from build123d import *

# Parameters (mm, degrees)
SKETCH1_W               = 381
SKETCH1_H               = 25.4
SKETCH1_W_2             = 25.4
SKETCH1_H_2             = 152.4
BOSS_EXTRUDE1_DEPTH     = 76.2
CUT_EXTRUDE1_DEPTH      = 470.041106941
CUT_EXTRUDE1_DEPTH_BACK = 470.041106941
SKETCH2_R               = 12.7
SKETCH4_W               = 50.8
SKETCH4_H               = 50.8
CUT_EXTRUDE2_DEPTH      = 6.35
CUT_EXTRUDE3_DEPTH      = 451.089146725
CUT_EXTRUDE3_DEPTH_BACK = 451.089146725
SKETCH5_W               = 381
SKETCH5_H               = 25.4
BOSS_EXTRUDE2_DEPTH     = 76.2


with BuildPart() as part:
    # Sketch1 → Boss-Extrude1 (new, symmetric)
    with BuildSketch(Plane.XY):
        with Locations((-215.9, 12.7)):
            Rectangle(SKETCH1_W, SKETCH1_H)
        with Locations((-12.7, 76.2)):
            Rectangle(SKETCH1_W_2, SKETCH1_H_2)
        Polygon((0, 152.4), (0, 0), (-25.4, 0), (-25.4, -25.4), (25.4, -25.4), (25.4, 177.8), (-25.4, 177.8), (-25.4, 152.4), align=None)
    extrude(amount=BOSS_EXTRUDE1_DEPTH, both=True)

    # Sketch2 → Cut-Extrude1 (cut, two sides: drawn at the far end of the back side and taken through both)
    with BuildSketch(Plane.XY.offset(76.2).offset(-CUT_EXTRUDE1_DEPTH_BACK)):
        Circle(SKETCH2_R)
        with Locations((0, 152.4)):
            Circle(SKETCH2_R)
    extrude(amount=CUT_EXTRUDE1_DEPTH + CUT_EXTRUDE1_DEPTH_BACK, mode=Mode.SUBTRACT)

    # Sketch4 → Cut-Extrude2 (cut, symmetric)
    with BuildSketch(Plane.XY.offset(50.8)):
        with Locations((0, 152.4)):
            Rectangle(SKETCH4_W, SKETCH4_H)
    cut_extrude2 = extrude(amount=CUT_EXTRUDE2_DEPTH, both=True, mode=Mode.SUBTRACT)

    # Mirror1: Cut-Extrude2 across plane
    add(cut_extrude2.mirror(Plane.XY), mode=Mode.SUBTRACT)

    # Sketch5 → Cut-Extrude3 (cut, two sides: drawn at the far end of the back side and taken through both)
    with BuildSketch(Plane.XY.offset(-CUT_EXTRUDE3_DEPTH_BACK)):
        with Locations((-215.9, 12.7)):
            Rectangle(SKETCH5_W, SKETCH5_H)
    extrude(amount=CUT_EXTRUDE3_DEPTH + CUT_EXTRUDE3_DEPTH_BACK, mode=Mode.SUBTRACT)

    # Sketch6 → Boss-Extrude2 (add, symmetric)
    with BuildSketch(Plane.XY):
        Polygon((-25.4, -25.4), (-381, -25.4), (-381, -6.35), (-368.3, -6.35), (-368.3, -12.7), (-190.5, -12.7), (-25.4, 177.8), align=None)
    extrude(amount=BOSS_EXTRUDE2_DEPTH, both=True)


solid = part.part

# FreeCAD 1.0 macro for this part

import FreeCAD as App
import Part
import Sketcher
from FreeCAD import Vector
Q = App.Units.Quantity


def add_polygon(sketch, points):
    """Adds a closed chain of lines whose ends are joined by coincident constraints."""
    first, n = sketch.GeometryCount, len(points)
    for a, b in zip(points, points[1:] + points[:1]):
        sketch.addGeometry(Part.LineSegment(App.Vector(*a, 0), App.Vector(*b, 0)), False)
    for i in range(n):
        sketch.addConstraint(Sketcher.Constraint("Coincident", first + i, 2, first + (i + 1) % n, 1))

doc = App.newDocument("Part")
body = doc.addObject("PartDesign::Body", "Body")

# Sketch on XY plane
sketch1 = body.newObject("Sketcher::SketchObject", "Sketch")
sketch1.AttachmentSupport = (doc.getObject("XY_Plane"), [""])
sketch1.MapMode = "FlatFace"
add_polygon(sketch1, [(-406, 25), (-406, 0), (-25, 0), (-25, -25), (25, -25), (25, 178), (-25, 178), (-25, 25)])  # lines 0-7
sketch1.addConstraint([
    Sketcher.Constraint("Vertical", 0),
    Sketcher.Constraint("Horizontal", 1),
    Sketcher.Constraint("Vertical", 2),
    Sketcher.Constraint("Horizontal", 3),
    Sketcher.Constraint("Vertical", 4),
    Sketcher.Constraint("Horizontal", 5),
    Sketcher.Constraint("Vertical", 6),
    Sketcher.Constraint("Horizontal", 7),
    Sketcher.Constraint("Symmetric", 3, 2, 6, 2, -1, 1),
    Sketcher.Constraint("PointOnObject", 0, 2, -1),
    Sketcher.Constraint("Vertical", 2, 2, 5, 2),
    Sketcher.Constraint("DistanceX", 1, 1, 1, 2, Q("15 in")),
    Sketcher.Constraint("DistanceX", 3, 1, 3, 2, Q("2 in")),
    Sketcher.Constraint("DistanceY", 0, 2, 0, 1, Q("1 in")),
    Sketcher.Constraint("DistanceY", 4, 1, 4, 2, Q("8 in")),
])
pad1 = body.newObject("PartDesign::Pad", "Pad")
pad1.Profile = sketch1
pad1.Length = Q("6 in")
pad1.Midplane = True

# Sketch on XY plane
sketch2 = body.newObject("Sketcher::SketchObject", "Sketch001")
sketch2.AttachmentSupport = (doc.getObject("XY_Plane"), [""])
sketch2.MapMode = "FlatFace"
sketch2.AttachmentOffset = App.Placement(Vector(0, 0, 3 * 25.4), App.Rotation())
sketch2.addGeometry([
    Part.Circle(Vector(0, 0, 0), Vector(0, 0, 1), 13),
    Part.Circle(Vector(0, 152, 0), Vector(0, 0, 1), 13),
], False)
sketch2.addConstraint([
    Sketcher.Constraint("Coincident", 0, 3, -1, 1),
    Sketcher.Constraint("Equal", 0, 1),
    Sketcher.Constraint("PointOnObject", 1, 3, -2),
    Sketcher.Constraint("Diameter", 0, Q("1 in")),
    Sketcher.Constraint("DistanceY", -1, 1, 1, 3, Q("6 in")),
])
pocket1 = body.newObject("PartDesign::Pocket", "Pocket")
pocket1.Profile = sketch2
pocket1.Type = "ThroughAll"
pocket1.Midplane = True

# Sketch on XY plane
sketch3 = body.newObject("Sketcher::SketchObject", "Sketch002")
sketch3.AttachmentSupport = (doc.getObject("XY_Plane"), [""])
sketch3.MapMode = "FlatFace"
sketch3.AttachmentOffset = App.Placement(Vector(0, 0, 2 * 25.4), App.Rotation())
add_polygon(sketch3, [(-25, 178), (-25, 127), (25, 127), (25, 178)])  # lines 0-3
sketch3.addConstraint([
    Sketcher.Constraint("Vertical", 0),
    Sketcher.Constraint("Horizontal", 1),
    Sketcher.Constraint("Vertical", 2),
    Sketcher.Constraint("Horizontal", 3),
    Sketcher.Constraint("Equal", 3, 0),
    Sketcher.Constraint("DistanceX", 1, 1, 1, 2, Q("2 in")),
    Sketcher.Constraint("DistanceX", 0, 2, -1, 1, Q("1 in")),
    Sketcher.Constraint("DistanceY", -1, 1, 0, 2, Q("5 in")),
])
pocket2 = body.newObject("PartDesign::Pocket", "Pocket001")
pocket2.Profile = sketch3
pocket2.Length = Q("0.5 in")
pocket2.Midplane = True
doc.recompute()

mirrored = body.newObject("PartDesign::Mirrored", "Mirrored")
mirrored.Originals = [pocket2]
mirrored.MirrorPlane = (doc.getObject("XY_Plane"), [""])
body.Tip = mirrored

# Sketch on XY plane
sketch4 = body.newObject("Sketcher::SketchObject", "Sketch003")
sketch4.AttachmentSupport = (doc.getObject("XY_Plane"), [""])
sketch4.MapMode = "FlatFace"
add_polygon(sketch4, [(-406, 25), (-406, 0), (-25, 0), (-25, 25)])  # lines 0-3
sketch4.addConstraint([
    Sketcher.Constraint("Vertical", 0),
    Sketcher.Constraint("Horizontal", 1),
    Sketcher.Constraint("Vertical", 2),
    Sketcher.Constraint("Horizontal", 3),
    Sketcher.Constraint("PointOnObject", 0, 2, -1),
    Sketcher.Constraint("DistanceX", 1, 1, 1, 2, Q("15 in")),
    Sketcher.Constraint("DistanceY", 0, 2, 0, 1, Q("1 in")),
    Sketcher.Constraint("DistanceX", 0, 2, -1, 1, Q("16 in")),
])
pocket3 = body.newObject("PartDesign::Pocket", "Pocket002")
pocket3.Profile = sketch4
pocket3.Type = "ThroughAll"
pocket3.Midplane = True

# Sketch on XY plane
sketch5 = body.newObject("Sketcher::SketchObject", "Sketch004")
sketch5.AttachmentSupport = (doc.getObject("XY_Plane"), [""])
sketch5.MapMode = "FlatFace"
add_polygon(sketch5, [(-381, -25), (-25, -25), (-25, 178), (-190, -13), (-368, -13), (-368, -6), (-381, -6)])  # lines 0-6
sketch5.addConstraint([
    Sketcher.Constraint("Horizontal", 0),
    Sketcher.Constraint("Vertical", 1),
    Sketcher.Constraint("Horizontal", 3),
    Sketcher.Constraint("Vertical", 4),
    Sketcher.Constraint("Horizontal", 5),
    Sketcher.Constraint("Vertical", 6),
    Sketcher.Constraint("DistanceX", 0, 1, 0, 2, Q("14 in")),
    Sketcher.Constraint("DistanceX", 3, 2, 3, 1, Q("7 in")),
    Sketcher.Constraint("DistanceY", 1, 1, 1, 2, Q("8 in")),
    Sketcher.Constraint("DistanceX", 5, 2, 5, 1, Q("0.5 in")),
    Sketcher.Constraint("DistanceX", 0, 2, -1, 1, Q("1 in")),
    Sketcher.Constraint("DistanceY", 0, 2, -1, 1, Q("1 in")),
    Sketcher.Constraint("DistanceY", 4, 1, 4, 2, Q("0.25 in")),
    Sketcher.Constraint("DistanceY", 6, 2, 6, 1, Q("0.75 in")),
])
pad2 = body.newObject("PartDesign::Pad", "Pad001")
pad2.Profile = sketch5
pad2.Length = Q("6 in")
pad2.Midplane = True

doc.recompute()
